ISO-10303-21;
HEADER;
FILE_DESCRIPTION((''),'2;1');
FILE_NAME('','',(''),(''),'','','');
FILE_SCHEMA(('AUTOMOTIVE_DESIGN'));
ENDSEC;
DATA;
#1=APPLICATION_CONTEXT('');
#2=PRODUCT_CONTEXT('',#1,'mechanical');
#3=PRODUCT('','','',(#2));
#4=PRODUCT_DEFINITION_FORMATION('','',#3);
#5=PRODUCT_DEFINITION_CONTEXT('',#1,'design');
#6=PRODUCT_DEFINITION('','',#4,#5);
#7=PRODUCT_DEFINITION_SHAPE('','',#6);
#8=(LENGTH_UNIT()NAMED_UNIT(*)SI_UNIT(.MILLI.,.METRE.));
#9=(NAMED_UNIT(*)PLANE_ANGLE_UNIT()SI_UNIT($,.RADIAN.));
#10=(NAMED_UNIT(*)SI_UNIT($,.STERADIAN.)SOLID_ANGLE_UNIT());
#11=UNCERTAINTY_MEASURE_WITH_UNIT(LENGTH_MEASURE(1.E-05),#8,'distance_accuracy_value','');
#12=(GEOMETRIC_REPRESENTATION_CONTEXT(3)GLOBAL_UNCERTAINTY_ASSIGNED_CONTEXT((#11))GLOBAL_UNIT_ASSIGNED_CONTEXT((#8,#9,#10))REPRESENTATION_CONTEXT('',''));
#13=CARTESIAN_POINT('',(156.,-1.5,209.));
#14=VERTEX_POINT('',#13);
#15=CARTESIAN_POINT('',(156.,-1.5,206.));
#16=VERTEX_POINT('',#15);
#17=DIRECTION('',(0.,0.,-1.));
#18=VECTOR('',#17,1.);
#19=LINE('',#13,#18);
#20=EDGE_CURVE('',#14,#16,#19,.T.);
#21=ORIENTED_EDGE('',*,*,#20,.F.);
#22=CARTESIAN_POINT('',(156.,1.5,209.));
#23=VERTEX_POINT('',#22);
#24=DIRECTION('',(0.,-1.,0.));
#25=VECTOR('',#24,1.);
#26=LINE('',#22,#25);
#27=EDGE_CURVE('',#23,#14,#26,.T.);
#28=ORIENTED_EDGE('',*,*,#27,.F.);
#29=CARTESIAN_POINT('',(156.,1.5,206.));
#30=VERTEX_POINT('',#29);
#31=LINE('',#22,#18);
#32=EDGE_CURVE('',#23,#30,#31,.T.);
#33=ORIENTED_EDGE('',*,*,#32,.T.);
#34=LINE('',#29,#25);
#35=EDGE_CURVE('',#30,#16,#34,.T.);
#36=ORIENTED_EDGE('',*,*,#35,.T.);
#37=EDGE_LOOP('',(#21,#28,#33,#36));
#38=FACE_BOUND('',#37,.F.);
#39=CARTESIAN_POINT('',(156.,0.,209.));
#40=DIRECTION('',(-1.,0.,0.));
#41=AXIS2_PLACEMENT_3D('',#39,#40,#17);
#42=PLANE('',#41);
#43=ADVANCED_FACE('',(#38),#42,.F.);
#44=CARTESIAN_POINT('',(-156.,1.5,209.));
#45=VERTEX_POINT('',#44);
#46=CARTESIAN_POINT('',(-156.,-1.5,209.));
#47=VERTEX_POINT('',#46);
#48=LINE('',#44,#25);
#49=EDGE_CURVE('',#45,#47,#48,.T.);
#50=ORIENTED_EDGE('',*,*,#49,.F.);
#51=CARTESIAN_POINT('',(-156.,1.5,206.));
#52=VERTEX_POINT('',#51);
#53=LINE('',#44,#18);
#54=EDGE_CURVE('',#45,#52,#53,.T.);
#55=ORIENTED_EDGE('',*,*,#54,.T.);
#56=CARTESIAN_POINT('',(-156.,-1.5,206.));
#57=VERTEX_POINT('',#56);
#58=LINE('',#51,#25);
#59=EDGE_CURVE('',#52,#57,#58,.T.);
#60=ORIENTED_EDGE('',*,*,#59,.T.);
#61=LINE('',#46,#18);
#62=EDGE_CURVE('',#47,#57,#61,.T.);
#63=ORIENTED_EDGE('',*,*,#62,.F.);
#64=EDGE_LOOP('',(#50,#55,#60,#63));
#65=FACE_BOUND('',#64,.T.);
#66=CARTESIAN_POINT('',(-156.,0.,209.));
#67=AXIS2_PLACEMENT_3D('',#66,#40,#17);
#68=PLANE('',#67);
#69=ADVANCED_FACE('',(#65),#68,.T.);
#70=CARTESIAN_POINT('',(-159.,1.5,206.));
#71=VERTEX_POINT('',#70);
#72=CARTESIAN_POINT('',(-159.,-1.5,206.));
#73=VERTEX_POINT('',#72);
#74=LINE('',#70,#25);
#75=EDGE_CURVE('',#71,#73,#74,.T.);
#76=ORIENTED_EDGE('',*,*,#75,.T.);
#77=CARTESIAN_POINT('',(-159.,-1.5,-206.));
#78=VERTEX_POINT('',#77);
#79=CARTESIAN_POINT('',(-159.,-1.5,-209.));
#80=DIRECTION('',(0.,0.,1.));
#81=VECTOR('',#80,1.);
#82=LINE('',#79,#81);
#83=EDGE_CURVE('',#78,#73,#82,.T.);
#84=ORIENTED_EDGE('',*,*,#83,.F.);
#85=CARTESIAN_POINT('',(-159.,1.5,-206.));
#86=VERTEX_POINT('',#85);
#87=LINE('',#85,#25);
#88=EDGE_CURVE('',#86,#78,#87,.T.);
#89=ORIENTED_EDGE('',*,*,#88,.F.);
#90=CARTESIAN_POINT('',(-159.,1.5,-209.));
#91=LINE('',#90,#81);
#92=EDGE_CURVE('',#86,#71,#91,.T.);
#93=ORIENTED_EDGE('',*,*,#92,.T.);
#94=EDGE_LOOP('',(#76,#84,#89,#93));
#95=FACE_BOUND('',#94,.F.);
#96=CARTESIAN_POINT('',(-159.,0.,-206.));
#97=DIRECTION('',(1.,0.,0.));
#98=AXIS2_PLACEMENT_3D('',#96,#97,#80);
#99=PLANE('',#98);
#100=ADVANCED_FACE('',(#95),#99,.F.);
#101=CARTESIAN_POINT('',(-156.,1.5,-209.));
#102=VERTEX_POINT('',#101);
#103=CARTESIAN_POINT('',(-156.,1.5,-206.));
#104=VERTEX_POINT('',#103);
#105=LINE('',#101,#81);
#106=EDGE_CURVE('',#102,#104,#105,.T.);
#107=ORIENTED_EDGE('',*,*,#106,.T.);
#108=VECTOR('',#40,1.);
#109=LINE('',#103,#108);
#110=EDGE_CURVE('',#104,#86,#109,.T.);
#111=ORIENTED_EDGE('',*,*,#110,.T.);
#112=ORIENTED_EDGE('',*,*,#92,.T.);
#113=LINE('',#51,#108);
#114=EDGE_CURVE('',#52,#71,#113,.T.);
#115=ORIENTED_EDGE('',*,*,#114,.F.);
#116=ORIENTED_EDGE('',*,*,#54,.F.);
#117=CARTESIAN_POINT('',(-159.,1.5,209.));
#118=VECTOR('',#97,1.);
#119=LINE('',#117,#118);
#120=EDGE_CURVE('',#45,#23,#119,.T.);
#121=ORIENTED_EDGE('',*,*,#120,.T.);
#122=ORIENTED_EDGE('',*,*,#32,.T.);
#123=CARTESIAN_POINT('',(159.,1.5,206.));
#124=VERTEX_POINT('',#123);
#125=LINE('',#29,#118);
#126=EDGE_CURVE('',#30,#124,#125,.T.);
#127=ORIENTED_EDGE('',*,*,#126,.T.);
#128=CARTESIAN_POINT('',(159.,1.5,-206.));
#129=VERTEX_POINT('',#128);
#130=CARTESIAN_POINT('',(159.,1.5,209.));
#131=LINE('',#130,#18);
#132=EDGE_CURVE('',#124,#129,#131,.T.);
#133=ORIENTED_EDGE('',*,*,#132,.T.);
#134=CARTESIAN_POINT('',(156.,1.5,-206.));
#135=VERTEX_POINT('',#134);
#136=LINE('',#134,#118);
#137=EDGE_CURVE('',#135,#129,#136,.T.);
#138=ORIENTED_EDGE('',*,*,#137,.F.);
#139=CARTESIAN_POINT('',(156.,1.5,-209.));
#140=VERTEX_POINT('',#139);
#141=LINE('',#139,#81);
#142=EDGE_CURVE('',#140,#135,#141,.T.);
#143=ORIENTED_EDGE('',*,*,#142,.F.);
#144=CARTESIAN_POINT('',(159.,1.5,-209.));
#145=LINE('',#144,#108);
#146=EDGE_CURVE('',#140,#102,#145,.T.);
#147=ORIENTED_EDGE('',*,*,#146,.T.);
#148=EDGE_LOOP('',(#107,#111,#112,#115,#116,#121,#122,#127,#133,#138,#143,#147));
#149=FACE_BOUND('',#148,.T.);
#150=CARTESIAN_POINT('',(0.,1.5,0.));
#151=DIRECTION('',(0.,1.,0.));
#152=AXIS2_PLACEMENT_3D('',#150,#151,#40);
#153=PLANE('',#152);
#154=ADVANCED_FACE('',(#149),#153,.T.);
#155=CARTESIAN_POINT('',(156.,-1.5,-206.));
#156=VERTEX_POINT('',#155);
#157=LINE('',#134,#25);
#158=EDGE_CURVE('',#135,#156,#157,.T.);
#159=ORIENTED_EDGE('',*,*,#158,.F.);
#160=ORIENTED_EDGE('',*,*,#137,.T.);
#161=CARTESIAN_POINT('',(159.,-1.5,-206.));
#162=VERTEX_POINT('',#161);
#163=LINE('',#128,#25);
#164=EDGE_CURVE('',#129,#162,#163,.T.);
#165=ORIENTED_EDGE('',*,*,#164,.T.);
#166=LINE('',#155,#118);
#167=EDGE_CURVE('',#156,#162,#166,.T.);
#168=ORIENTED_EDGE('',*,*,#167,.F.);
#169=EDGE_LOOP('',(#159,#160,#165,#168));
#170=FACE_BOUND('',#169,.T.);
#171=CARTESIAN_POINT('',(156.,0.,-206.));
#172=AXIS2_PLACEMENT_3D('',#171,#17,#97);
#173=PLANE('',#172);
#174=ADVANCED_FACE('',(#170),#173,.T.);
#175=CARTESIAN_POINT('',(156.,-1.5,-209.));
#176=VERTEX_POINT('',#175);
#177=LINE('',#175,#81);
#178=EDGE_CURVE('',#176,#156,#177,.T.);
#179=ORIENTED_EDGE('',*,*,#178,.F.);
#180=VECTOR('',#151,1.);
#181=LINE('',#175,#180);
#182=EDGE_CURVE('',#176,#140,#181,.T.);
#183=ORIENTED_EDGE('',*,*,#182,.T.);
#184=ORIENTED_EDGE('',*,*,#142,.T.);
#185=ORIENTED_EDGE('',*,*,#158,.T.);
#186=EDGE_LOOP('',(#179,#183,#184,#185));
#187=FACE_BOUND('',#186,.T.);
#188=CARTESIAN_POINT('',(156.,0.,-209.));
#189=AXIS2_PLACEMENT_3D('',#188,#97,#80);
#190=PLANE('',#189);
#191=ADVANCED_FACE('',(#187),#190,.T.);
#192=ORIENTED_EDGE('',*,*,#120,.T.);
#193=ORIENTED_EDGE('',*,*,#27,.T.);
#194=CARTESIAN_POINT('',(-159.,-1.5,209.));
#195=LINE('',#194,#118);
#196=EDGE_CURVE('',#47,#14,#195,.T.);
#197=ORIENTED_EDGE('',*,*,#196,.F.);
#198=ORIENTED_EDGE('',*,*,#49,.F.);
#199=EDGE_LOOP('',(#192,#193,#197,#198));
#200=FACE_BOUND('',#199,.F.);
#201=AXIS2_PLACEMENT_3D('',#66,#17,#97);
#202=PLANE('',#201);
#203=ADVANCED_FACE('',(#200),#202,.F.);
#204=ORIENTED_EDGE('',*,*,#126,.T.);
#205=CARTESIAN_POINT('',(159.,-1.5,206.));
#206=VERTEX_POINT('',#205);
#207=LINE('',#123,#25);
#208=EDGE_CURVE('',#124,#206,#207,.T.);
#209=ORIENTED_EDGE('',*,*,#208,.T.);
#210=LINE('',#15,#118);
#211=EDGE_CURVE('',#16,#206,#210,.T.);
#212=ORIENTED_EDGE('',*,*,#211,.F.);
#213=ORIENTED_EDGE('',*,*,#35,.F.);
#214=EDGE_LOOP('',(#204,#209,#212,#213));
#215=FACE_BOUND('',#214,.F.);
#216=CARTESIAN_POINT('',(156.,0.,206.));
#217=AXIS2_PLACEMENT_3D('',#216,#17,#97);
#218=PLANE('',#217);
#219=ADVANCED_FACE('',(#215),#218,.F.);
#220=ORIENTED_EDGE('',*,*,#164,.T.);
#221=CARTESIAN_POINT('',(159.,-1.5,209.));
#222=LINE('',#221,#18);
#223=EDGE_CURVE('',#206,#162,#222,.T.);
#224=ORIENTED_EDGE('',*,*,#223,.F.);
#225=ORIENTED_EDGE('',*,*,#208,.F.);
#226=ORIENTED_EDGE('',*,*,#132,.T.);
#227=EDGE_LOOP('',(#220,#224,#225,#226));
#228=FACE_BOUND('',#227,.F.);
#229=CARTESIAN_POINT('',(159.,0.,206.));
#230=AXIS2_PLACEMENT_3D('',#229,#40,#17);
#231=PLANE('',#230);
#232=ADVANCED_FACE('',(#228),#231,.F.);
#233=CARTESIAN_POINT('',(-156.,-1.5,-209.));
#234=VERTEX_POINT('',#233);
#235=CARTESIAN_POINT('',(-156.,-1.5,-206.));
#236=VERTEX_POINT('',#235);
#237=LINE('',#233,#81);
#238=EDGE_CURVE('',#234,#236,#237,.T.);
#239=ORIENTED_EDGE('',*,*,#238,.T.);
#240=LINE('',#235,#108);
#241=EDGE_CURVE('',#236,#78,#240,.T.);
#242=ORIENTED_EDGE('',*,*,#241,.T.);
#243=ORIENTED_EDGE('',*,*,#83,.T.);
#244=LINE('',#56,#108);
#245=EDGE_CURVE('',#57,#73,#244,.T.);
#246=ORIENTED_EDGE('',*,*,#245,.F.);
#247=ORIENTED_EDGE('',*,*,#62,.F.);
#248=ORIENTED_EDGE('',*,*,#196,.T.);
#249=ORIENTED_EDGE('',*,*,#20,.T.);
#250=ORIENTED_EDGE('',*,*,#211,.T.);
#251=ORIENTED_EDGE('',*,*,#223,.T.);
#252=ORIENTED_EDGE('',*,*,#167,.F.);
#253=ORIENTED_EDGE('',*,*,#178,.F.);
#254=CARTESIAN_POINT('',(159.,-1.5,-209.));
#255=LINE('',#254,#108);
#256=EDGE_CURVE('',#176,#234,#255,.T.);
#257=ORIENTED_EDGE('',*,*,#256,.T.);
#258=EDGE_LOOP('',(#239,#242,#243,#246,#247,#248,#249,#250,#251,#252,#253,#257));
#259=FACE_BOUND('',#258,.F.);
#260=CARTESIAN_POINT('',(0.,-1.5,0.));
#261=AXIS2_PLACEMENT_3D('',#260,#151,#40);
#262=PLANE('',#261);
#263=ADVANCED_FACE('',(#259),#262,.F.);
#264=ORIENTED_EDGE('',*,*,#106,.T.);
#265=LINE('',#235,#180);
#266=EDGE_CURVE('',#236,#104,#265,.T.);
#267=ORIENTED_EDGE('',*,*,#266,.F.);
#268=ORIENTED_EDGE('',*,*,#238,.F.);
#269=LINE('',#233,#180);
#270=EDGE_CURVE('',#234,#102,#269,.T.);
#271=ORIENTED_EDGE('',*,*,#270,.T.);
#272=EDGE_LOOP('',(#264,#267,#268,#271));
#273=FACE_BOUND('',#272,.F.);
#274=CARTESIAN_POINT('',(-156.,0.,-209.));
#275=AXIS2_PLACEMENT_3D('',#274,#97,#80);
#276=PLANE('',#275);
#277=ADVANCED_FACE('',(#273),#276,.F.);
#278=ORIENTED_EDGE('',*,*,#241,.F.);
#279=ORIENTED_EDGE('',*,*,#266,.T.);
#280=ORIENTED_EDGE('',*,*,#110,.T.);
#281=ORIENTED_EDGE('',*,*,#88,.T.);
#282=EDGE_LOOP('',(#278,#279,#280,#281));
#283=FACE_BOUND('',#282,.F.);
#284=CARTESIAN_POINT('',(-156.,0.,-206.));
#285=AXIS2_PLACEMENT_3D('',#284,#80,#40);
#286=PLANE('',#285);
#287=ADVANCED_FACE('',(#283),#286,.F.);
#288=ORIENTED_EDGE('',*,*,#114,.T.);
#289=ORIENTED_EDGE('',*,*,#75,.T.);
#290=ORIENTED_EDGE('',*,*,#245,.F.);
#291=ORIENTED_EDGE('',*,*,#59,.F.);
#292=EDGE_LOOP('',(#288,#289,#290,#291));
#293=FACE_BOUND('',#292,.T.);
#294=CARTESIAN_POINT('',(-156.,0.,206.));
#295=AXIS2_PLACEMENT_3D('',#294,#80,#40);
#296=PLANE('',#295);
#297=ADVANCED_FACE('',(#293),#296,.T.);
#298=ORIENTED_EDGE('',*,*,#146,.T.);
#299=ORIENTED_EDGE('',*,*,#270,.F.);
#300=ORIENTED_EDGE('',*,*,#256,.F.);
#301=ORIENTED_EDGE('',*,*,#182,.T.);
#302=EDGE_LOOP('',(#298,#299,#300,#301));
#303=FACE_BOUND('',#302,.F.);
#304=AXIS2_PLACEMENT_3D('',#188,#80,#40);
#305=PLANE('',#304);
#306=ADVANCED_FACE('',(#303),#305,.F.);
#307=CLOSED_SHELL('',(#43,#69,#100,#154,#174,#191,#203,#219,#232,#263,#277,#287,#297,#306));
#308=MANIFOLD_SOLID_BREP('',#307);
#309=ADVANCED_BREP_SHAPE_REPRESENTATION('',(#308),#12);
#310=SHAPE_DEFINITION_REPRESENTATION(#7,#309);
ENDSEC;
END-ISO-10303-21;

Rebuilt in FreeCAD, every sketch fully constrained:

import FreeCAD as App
import Part
import Sketcher


def add_polygon(sketch, points):
    """Adds a closed chain of lines whose ends are joined by coincident constraints."""
    first, n = sketch.GeometryCount, len(points)
    for a, b in zip(points, points[1:] + points[:1]):
        sketch.addGeometry(Part.LineSegment(App.Vector(*a, 0), App.Vector(*b, 0)), False)
    for i in range(n):
        sketch.addConstraint(Sketcher.Constraint("Coincident", first + i, 2, first + (i + 1) % n, 1))

doc = App.newDocument("Part")
params = doc.addObject("Spreadsheet::Sheet", "Params")
for row, (alias, value) in enumerate([
    ("sketch1_width", "3 mm"),
    ("pad1_length", "3 mm"),
], start=1):
    params.set(f"A{row}", alias)
    params.set(f"B{row}", "=" + value)
    params.setAlias(f"B{row}", alias)

body = doc.addObject("PartDesign::Body", "Body")

sketch1 = doc.addObject("Sketcher::SketchObject", "Sketch")
body.addObject(sketch1)
sketch1.AttachmentSupport = (doc.XZ_Plane, [""])
sketch1.MapMode = "FlatFace"
add_polygon(sketch1, [(156, -206), (156, -209), (-156, -209), (-156, -206), (-159, -206), (-159, 206), (-156, 206), (-156, 209), (156, 209), (156, 206), (159, 206), (159, -206)])
sketch1.addConstraint(Sketcher.Constraint("Vertical", 0))
sketch1.addConstraint(Sketcher.Constraint("Horizontal", 1))
sketch1.addConstraint(Sketcher.Constraint("Vertical", 2))
sketch1.addConstraint(Sketcher.Constraint("Horizontal", 3))
sketch1.addConstraint(Sketcher.Constraint("Vertical", 4))
sketch1.addConstraint(Sketcher.Constraint("Horizontal", 5))
sketch1.addConstraint(Sketcher.Constraint("Vertical", 6))
sketch1.addConstraint(Sketcher.Constraint("Horizontal", 7))
sketch1.addConstraint(Sketcher.Constraint("Vertical", 8))
sketch1.addConstraint(Sketcher.Constraint("Horizontal", 9))
sketch1.addConstraint(Sketcher.Constraint("Vertical", 10))
sketch1.addConstraint(Sketcher.Constraint("Horizontal", 11))
sketch1.addConstraint(Sketcher.Constraint("Symmetric", 0, 2, 6, 2, -1, 1))
sketch1.addConstraint(Sketcher.Constraint("Symmetric", 2, 2, 8, 2, -1, 1))
sketch1.addConstraint(Sketcher.Constraint("Symmetric", 4, 2, 10, 2, -1, 1))
sketch1.addConstraint(Sketcher.Constraint("Symmetric", 5, 2, 8, 2, -2))
sketch1.addConstraint(Sketcher.Constraint("Equal", 11, 0))
sketch1.addConstraint(Sketcher.Constraint("DistanceX", 3, 2, 3, 1, 3.0))
sketch1.addConstraint(Sketcher.Constraint("DistanceY", 1, 2, 6, 2, 418.0))
sketch1.addConstraint(Sketcher.Constraint("DistanceX", 4, 2, 9, 2, 318.0))
sketch1.setExpression("Constraints[29]", "Params.sketch1_width")
pad1 = doc.addObject("PartDesign::Pad", "Pad")
body.addObject(pad1)
pad1.Profile = sketch1
pad1.setExpression("Length", "Params.pad1_length")
pad1.Midplane = True

doc.recompute()
